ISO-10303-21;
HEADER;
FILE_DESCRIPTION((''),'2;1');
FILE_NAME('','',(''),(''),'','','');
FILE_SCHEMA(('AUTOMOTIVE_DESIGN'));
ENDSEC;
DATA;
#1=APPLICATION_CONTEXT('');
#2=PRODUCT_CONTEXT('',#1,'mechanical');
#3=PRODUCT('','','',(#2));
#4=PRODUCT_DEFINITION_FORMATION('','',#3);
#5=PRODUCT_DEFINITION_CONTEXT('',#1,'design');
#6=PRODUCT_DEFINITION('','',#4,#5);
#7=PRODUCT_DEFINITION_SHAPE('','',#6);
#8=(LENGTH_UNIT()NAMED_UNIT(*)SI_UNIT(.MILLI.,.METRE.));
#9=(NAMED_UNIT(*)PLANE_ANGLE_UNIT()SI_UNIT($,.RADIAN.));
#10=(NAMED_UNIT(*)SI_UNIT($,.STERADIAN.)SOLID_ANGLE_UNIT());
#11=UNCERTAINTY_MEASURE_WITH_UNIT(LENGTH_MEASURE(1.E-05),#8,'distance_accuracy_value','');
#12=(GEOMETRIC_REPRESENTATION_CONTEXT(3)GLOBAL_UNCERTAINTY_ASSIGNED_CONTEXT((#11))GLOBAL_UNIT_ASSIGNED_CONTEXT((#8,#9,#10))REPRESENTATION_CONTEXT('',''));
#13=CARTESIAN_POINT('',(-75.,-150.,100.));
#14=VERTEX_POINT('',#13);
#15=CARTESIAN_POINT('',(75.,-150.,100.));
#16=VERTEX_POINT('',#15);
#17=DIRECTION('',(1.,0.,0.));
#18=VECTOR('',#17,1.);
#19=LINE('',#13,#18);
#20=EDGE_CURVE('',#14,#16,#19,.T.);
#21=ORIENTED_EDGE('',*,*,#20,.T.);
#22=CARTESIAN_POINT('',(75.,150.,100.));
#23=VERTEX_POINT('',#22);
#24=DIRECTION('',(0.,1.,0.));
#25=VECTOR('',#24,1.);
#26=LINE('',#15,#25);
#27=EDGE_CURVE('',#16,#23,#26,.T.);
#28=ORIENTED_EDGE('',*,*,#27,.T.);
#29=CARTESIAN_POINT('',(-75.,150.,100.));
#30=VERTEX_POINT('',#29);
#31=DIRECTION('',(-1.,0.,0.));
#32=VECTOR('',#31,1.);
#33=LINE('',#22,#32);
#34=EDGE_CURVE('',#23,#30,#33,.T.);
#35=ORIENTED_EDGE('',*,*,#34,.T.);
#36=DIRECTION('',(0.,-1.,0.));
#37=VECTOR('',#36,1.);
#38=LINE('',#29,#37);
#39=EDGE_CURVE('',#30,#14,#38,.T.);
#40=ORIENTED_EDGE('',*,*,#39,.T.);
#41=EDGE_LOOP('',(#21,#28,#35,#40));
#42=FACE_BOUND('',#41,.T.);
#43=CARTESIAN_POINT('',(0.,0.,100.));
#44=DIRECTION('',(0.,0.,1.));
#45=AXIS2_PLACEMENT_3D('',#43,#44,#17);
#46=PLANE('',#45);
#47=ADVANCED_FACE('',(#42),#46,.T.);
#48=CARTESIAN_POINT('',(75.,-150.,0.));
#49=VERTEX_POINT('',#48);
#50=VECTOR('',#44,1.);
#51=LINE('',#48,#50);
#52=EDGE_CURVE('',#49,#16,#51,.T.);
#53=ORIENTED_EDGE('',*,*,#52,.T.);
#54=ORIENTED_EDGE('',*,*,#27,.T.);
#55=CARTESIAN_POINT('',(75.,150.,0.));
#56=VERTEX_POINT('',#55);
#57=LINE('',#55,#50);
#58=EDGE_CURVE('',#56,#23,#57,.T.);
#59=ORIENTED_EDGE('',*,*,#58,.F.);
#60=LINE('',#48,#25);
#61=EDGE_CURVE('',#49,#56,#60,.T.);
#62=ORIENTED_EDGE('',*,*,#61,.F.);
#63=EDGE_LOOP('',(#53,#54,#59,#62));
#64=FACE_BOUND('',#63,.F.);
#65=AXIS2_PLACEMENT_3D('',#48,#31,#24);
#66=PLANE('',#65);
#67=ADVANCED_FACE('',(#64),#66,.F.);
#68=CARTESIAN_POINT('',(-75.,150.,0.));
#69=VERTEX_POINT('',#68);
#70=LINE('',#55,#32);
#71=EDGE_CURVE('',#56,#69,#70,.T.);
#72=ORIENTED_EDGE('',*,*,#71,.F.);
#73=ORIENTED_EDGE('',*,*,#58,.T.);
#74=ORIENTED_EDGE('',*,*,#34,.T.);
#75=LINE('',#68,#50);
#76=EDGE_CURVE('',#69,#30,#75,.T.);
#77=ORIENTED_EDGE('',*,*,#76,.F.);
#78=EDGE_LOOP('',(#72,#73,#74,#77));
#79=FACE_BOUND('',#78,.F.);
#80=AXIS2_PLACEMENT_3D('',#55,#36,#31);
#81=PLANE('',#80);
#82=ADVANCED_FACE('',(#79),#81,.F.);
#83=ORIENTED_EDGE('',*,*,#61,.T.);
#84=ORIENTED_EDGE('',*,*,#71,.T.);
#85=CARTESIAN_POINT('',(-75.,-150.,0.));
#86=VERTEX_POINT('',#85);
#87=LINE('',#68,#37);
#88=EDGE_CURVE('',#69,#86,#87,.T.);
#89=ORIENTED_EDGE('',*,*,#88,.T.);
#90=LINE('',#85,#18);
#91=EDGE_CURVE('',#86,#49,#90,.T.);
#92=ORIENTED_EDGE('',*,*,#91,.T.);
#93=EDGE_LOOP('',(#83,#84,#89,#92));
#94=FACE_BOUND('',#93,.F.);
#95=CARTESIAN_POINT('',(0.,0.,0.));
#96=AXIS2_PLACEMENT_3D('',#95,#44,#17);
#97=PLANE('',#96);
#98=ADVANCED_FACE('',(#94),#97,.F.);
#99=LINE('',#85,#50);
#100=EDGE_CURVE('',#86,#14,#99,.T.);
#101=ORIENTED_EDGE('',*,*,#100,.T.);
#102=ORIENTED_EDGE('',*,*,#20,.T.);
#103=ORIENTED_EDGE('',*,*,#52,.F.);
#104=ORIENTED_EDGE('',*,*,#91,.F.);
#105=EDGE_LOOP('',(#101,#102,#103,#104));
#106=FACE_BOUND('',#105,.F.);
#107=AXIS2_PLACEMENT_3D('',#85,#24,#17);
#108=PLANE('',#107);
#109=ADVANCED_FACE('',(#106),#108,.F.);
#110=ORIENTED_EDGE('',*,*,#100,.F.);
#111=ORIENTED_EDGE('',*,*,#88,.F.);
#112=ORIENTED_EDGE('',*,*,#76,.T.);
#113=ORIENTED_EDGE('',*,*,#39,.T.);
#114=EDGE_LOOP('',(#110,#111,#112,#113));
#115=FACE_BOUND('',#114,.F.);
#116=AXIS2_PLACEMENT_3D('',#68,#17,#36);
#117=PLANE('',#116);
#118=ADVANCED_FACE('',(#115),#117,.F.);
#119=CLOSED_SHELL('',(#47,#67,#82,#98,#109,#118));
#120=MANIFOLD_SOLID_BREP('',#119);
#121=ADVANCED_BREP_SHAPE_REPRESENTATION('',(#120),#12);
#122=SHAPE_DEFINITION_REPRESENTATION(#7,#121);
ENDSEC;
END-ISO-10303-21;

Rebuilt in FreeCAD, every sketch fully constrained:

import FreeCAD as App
import Part
import Sketcher
from FreeCAD import Vector

doc = App.newDocument("Part")
body = doc.addObject("PartDesign::Body", "Body")

sketch1 = body.newObject("Sketcher::SketchObject", "Sketch")
sketch1.AttachmentSupport = (doc.getObject("XY_Plane"), [""])
sketch1.MapMode = "FlatFace"
sketch1.addGeometry(Part.LineSegment(Vector(75, 150, 0), Vector(-75, 150, 0)), False)
sketch1.addGeometry(Part.LineSegment(Vector(-75, 150, 0), Vector(-75, -150, 0)), False)
sketch1.addGeometry(Part.LineSegment(Vector(-75, -150, 0), Vector(75, -150, 0)), False)
sketch1.addGeometry(Part.LineSegment(Vector(75, -150, 0), Vector(75, 150, 0)), False)
sketch1.addConstraint(Sketcher.Constraint("Coincident", 0, 2, 1, 1))
sketch1.addConstraint(Sketcher.Constraint("Coincident", 1, 2, 2, 1))
sketch1.addConstraint(Sketcher.Constraint("Coincident", 2, 2, 3, 1))
sketch1.addConstraint(Sketcher.Constraint("Coincident", 3, 2, 0, 1))
sketch1.addConstraint(Sketcher.Constraint("Horizontal", 0))
sketch1.addConstraint(Sketcher.Constraint("Vertical", 1))
sketch1.addConstraint(Sketcher.Constraint("Horizontal", 2))
sketch1.addConstraint(Sketcher.Constraint("Vertical", 3))
sketch1.addConstraint(Sketcher.Constraint("Symmetric", 0, 2, 2, 2, -1, 1))
sketch1.addConstraint(Sketcher.Constraint("DistanceX", 0, 2, 0, 1, 150.0))
sketch1.addConstraint(Sketcher.Constraint("DistanceY", 1, 2, 1, 1, 300.0))
pad1 = body.newObject("PartDesign::Pad", "Pad")
pad1.Profile = sketch1
pad1.Length = 100

doc.recompute()
